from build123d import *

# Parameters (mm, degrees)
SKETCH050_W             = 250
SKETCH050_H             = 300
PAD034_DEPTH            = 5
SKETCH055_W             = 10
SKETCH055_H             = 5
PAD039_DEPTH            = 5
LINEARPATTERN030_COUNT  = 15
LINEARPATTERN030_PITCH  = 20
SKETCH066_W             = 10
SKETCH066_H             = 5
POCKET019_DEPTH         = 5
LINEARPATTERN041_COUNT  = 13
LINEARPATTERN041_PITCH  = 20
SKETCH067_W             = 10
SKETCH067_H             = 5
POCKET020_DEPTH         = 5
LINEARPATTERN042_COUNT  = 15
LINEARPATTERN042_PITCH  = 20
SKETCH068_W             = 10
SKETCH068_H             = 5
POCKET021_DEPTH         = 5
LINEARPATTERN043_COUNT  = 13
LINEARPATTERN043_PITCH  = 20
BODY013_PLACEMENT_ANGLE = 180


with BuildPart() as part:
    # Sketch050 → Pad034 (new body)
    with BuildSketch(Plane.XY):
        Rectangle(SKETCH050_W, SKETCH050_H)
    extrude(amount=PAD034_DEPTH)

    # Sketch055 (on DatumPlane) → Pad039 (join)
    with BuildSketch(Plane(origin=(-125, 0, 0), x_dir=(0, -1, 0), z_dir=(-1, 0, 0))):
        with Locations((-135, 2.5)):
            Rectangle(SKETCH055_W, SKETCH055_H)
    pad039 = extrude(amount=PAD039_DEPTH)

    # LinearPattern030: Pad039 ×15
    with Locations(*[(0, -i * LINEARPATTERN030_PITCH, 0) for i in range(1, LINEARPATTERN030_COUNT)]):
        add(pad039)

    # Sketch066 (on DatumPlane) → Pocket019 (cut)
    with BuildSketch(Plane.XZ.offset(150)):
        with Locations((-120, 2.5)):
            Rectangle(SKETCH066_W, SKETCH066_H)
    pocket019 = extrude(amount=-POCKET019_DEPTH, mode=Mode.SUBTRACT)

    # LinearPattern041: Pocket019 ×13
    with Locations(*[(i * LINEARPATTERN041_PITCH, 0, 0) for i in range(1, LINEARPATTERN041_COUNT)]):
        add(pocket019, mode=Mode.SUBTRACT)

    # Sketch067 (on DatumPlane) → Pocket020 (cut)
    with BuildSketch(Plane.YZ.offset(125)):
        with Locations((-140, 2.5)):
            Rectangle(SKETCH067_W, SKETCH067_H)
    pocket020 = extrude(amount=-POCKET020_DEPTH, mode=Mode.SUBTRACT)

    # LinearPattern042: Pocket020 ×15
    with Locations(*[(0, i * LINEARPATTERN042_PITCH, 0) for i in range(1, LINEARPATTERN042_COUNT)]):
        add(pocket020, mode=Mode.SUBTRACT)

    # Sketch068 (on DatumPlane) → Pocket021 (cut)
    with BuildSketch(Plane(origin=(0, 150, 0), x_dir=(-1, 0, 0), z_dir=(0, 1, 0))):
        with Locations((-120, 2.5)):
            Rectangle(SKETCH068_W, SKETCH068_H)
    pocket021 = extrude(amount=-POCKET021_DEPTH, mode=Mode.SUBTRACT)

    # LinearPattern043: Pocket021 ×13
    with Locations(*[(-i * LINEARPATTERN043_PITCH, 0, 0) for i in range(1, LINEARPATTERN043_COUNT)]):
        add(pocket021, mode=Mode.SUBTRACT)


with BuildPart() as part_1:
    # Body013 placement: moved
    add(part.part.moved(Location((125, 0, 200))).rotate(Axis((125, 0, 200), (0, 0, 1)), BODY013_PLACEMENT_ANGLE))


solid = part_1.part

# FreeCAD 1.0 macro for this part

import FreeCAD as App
import Part
import Sketcher

doc = App.newDocument("Part")
params = doc.addObject("Spreadsheet::Sheet", "Params")
for row, (alias, value) in enumerate([
    ("sketch1_width", "250 mm"),
    ("sketch1_height", "300 mm"),
    ("pad1_length", "5 mm"),
    ("sketch2_width", "10 mm"),
    ("sketch2_height", "5 mm"),
    ("pad2_length", "5 mm"),
    ("linearpattern_pitch", "20 mm"),
    ("sketch3_width", "10 mm"),
    ("sketch3_height", "5 mm"),
    ("pocket1_length", "5 mm"),
    ("linearpattern2_pitch", "20 mm"),
    ("sketch4_width", "10 mm"),
    ("sketch4_height", "5 mm"),
    ("pocket2_length", "5 mm"),
    ("linearpattern3_pitch", "20 mm"),
    ("sketch5_width", "10 mm"),
    ("sketch5_height", "5 mm"),
    ("pocket3_length", "5 mm"),
    ("linearpattern4_pitch", "20 mm"),
], start=1):
    params.set(f"A{row}", alias)
    params.set(f"B{row}", "=" + value)
    params.setAlias(f"B{row}", alias)

body = doc.addObject("PartDesign::Body", "Body")

# Sketch on XY plane
sketch1 = body.newObject("Sketcher::SketchObject", "Sketch")
sketch1.AttachmentSupport = (doc.getObject("XY_Plane"), [""])
sketch1.MapMode = "FlatFace"
sketch1.addGeometry([
    Part.LineSegment(App.Vector(-125, 150, 0), App.Vector(-125, -150, 0)),
    Part.LineSegment(App.Vector(-125, -150, 0), App.Vector(125, -150, 0)),
    Part.LineSegment(App.Vector(125, -150, 0), App.Vector(125, 150, 0)),
    Part.LineSegment(App.Vector(125, 150, 0), App.Vector(-125, 150, 0)),
], False)
sketch1.addConstraint([
    Sketcher.Constraint("Coincident", 0, 2, 1, 1),
    Sketcher.Constraint("Coincident", 1, 2, 2, 1),
    Sketcher.Constraint("Coincident", 2, 2, 3, 1),
    Sketcher.Constraint("Coincident", 3, 2, 0, 1),
    Sketcher.Constraint("Vertical", 0),
    Sketcher.Constraint("Horizontal", 1),
    Sketcher.Constraint("Vertical", 2),
    Sketcher.Constraint("Horizontal", 3),
    Sketcher.Constraint("Symmetric", 0, 2, 2, 2, -1, 1),
    Sketcher.Constraint("DistanceX", 1, 1, 1, 2, 250.0),
    Sketcher.Constraint("DistanceY", 0, 2, 0, 1, 300.0),
])
sketch1.setExpression("Constraints[9]", "Params.sketch1_width")
sketch1.setExpression("Constraints[10]", "Params.sketch1_height")
pad1 = body.newObject("PartDesign::Pad", "Pad")
pad1.Profile = sketch1
pad1.setExpression("Length", "Params.pad1_length")

# Sketch on YZ plane
sketch2 = body.newObject("Sketcher::SketchObject", "Sketch001")
sketch2.AttachmentSupport = (doc.getObject("YZ_Plane"), [""])
sketch2.MapMode = "FlatFace"
sketch2.AttachmentOffset = App.Placement(App.Vector(0, 0, -125), App.Rotation())
sketch2.addGeometry([
    Part.LineSegment(App.Vector(140, 5, 0), App.Vector(140, 0, 0)),
    Part.LineSegment(App.Vector(140, 0, 0), App.Vector(130, 0, 0)),
    Part.LineSegment(App.Vector(130, 0, 0), App.Vector(130, 5, 0)),
    Part.LineSegment(App.Vector(130, 5, 0), App.Vector(140, 5, 0)),
], False)
sketch2.addConstraint([
    Sketcher.Constraint("Coincident", 0, 2, 1, 1),
    Sketcher.Constraint("Coincident", 1, 2, 2, 1),
    Sketcher.Constraint("Coincident", 2, 2, 3, 1),
    Sketcher.Constraint("Coincident", 3, 2, 0, 1),
    Sketcher.Constraint("Vertical", 0),
    Sketcher.Constraint("Horizontal", 1),
    Sketcher.Constraint("Vertical", 2),
    Sketcher.Constraint("Horizontal", 3),
    Sketcher.Constraint("PointOnObject", 0, 2, -1),
    Sketcher.Constraint("DistanceX", 1, 2, 1, 1, 10.0),
    Sketcher.Constraint("DistanceY", 0, 2, 0, 1, 5.0),
    Sketcher.Constraint("DistanceX", -1, 1, 0, 2, 140.0),
])
sketch2.setExpression("Constraints[9]", "Params.sketch2_width")
sketch2.setExpression("Constraints[10]", "Params.sketch2_height")
pad2 = body.newObject("PartDesign::Pad", "Pad001")
pad2.Profile = sketch2
pad2.setExpression("Length", "Params.pad2_length")
pad2.Reversed = True
doc.recompute()

linearpattern = body.newObject("PartDesign::LinearPattern", "LinearPattern")
linearpattern.Originals = [pad2]
linearpattern.Direction = (doc.getObject("Y_Axis"), [""])
linearpattern.Mode = "offset"
linearpattern.setExpression("Offset", "Params.linearpattern_pitch")
linearpattern.Occurrences = 15
linearpattern.Reversed = True
body.Tip = linearpattern

# Sketch on XZ plane
sketch3 = body.newObject("Sketcher::SketchObject", "Sketch002")
sketch3.AttachmentSupport = (doc.getObject("XZ_Plane"), [""])
sketch3.MapMode = "FlatFace"
sketch3.AttachmentOffset = App.Placement(App.Vector(0, 0, 150), App.Rotation())
sketch3.addGeometry([
    Part.LineSegment(App.Vector(-125, 5, 0), App.Vector(-125, 0, 0)),
    Part.LineSegment(App.Vector(-125, 0, 0), App.Vector(-115, 0, 0)),
    Part.LineSegment(App.Vector(-115, 0, 0), App.Vector(-115, 5, 0)),
    Part.LineSegment(App.Vector(-115, 5, 0), App.Vector(-125, 5, 0)),
], False)
sketch3.addConstraint([
    Sketcher.Constraint("Coincident", 0, 2, 1, 1),
    Sketcher.Constraint("Coincident", 1, 2, 2, 1),
    Sketcher.Constraint("Coincident", 2, 2, 3, 1),
    Sketcher.Constraint("Coincident", 3, 2, 0, 1),
    Sketcher.Constraint("Vertical", 0),
    Sketcher.Constraint("Horizontal", 1),
    Sketcher.Constraint("Vertical", 2),
    Sketcher.Constraint("Horizontal", 3),
    Sketcher.Constraint("PointOnObject", 0, 2, -1),
    Sketcher.Constraint("DistanceX", 1, 1, 1, 2, 10.0),
    Sketcher.Constraint("DistanceY", 0, 2, 0, 1, 5.0),
    Sketcher.Constraint("DistanceX", 0, 2, -1, 1, 125.0),
])
sketch3.setExpression("Constraints[9]", "Params.sketch3_width")
sketch3.setExpression("Constraints[10]", "Params.sketch3_height")
pocket1 = body.newObject("PartDesign::Pocket", "Pocket")
pocket1.Profile = sketch3
pocket1.setExpression("Length", "Params.pocket1_length")
doc.recompute()

linearpattern2 = body.newObject("PartDesign::LinearPattern", "LinearPattern001")
linearpattern2.Originals = [pocket1]
linearpattern2.Direction = (doc.getObject("X_Axis"), [""])
linearpattern2.Mode = "offset"
linearpattern2.setExpression("Offset", "Params.linearpattern2_pitch")
linearpattern2.Occurrences = 13
body.Tip = linearpattern2

# Sketch on YZ plane
sketch4 = body.newObject("Sketcher::SketchObject", "Sketch003")
sketch4.AttachmentSupport = (doc.getObject("YZ_Plane"), [""])
sketch4.MapMode = "FlatFace"
sketch4.AttachmentOffset = App.Placement(App.Vector(0, 0, 125), App.Rotation())
sketch4.addGeometry([
    Part.LineSegment(App.Vector(-145, 5, 0), App.Vector(-145, 0, 0)),
    Part.LineSegment(App.Vector(-145, 0, 0), App.Vector(-135, 0, 0)),
    Part.LineSegment(App.Vector(-135, 0, 0), App.Vector(-135, 5, 0)),
    Part.LineSegment(App.Vector(-135, 5, 0), App.Vector(-145, 5, 0)),
], False)
sketch4.addConstraint([
    Sketcher.Constraint("Coincident", 0, 2, 1, 1),
    Sketcher.Constraint("Coincident", 1, 2, 2, 1),
    Sketcher.Constraint("Coincident", 2, 2, 3, 1),
    Sketcher.Constraint("Coincident", 3, 2, 0, 1),
    Sketcher.Constraint("Vertical", 0),
    Sketcher.Constraint("Horizontal", 1),
    Sketcher.Constraint("Vertical", 2),
    Sketcher.Constraint("Horizontal", 3),
    Sketcher.Constraint("PointOnObject", 0, 2, -1),
    Sketcher.Constraint("DistanceX", 1, 1, 1, 2, 10.0),
    Sketcher.Constraint("DistanceY", 0, 2, 0, 1, 5.0),
    Sketcher.Constraint("DistanceX", 0, 2, -1, 1, 145.0),
])
sketch4.setExpression("Constraints[9]", "Params.sketch4_width")
sketch4.setExpression("Constraints[10]", "Params.sketch4_height")
pocket2 = body.newObject("PartDesign::Pocket", "Pocket001")
pocket2.Profile = sketch4
pocket2.setExpression("Length", "Params.pocket2_length")
doc.recompute()

linearpattern3 = body.newObject("PartDesign::LinearPattern", "LinearPattern002")
linearpattern3.Originals = [pocket2]
linearpattern3.Direction = (doc.getObject("Y_Axis"), [""])
linearpattern3.Mode = "offset"
linearpattern3.setExpression("Offset", "Params.linearpattern3_pitch")
linearpattern3.Occurrences = 15
body.Tip = linearpattern3

# Sketch on XZ plane
sketch5 = body.newObject("Sketcher::SketchObject", "Sketch004")
sketch5.AttachmentSupport = (doc.getObject("XZ_Plane"), [""])
sketch5.MapMode = "FlatFace"
sketch5.AttachmentOffset = App.Placement(App.Vector(0, 0, -150), App.Rotation())
sketch5.addGeometry([
    Part.LineSegment(App.Vector(125, 5, 0), App.Vector(125, 0, 0)),
    Part.LineSegment(App.Vector(125, 0, 0), App.Vector(115, 0, 0)),
    Part.LineSegment(App.Vector(115, 0, 0), App.Vector(115, 5, 0)),
    Part.LineSegment(App.Vector(115, 5, 0), App.Vector(125, 5, 0)),
], False)
sketch5.addConstraint([
    Sketcher.Constraint("Coincident", 0, 2, 1, 1),
    Sketcher.Constraint("Coincident", 1, 2, 2, 1),
    Sketcher.Constraint("Coincident", 2, 2, 3, 1),
    Sketcher.Constraint("Coincident", 3, 2, 0, 1),
    Sketcher.Constraint("Vertical", 0),
    Sketcher.Constraint("Horizontal", 1),
    Sketcher.Constraint("Vertical", 2),
    Sketcher.Constraint("Horizontal", 3),
    Sketcher.Constraint("PointOnObject", 0, 2, -1),
    Sketcher.Constraint("DistanceX", 1, 2, 1, 1, 10.0),
    Sketcher.Constraint("DistanceY", 0, 2, 0, 1, 5.0),
    Sketcher.Constraint("DistanceX", -1, 1, 0, 2, 125.0),
])
sketch5.setExpression("Constraints[9]", "Params.sketch5_width")
sketch5.setExpression("Constraints[10]", "Params.sketch5_height")
pocket3 = body.newObject("PartDesign::Pocket", "Pocket002")
pocket3.Profile = sketch5
pocket3.setExpression("Length", "Params.pocket3_length")
pocket3.Reversed = True
doc.recompute()

linearpattern4 = body.newObject("PartDesign::LinearPattern", "LinearPattern003")
linearpattern4.Originals = [pocket3]
linearpattern4.Direction = (doc.getObject("X_Axis"), [""])
linearpattern4.Mode = "offset"
linearpattern4.setExpression("Offset", "Params.linearpattern4_pitch")
linearpattern4.Occurrences = 13
linearpattern4.Reversed = True
body.Tip = linearpattern4
body2 = doc.addObject("PartDesign::Body", "Body001")
doc.recompute()

body.Placement = App.Placement(App.Vector(125, 0, 200), App.Rotation(App.Vector(0, 0, 1), 180))
boolean = body2.newObject("PartDesign::Boolean", "Boolean")
boolean.Type = "Fuse"
boolean.addObjects([body])

doc.recompute()
